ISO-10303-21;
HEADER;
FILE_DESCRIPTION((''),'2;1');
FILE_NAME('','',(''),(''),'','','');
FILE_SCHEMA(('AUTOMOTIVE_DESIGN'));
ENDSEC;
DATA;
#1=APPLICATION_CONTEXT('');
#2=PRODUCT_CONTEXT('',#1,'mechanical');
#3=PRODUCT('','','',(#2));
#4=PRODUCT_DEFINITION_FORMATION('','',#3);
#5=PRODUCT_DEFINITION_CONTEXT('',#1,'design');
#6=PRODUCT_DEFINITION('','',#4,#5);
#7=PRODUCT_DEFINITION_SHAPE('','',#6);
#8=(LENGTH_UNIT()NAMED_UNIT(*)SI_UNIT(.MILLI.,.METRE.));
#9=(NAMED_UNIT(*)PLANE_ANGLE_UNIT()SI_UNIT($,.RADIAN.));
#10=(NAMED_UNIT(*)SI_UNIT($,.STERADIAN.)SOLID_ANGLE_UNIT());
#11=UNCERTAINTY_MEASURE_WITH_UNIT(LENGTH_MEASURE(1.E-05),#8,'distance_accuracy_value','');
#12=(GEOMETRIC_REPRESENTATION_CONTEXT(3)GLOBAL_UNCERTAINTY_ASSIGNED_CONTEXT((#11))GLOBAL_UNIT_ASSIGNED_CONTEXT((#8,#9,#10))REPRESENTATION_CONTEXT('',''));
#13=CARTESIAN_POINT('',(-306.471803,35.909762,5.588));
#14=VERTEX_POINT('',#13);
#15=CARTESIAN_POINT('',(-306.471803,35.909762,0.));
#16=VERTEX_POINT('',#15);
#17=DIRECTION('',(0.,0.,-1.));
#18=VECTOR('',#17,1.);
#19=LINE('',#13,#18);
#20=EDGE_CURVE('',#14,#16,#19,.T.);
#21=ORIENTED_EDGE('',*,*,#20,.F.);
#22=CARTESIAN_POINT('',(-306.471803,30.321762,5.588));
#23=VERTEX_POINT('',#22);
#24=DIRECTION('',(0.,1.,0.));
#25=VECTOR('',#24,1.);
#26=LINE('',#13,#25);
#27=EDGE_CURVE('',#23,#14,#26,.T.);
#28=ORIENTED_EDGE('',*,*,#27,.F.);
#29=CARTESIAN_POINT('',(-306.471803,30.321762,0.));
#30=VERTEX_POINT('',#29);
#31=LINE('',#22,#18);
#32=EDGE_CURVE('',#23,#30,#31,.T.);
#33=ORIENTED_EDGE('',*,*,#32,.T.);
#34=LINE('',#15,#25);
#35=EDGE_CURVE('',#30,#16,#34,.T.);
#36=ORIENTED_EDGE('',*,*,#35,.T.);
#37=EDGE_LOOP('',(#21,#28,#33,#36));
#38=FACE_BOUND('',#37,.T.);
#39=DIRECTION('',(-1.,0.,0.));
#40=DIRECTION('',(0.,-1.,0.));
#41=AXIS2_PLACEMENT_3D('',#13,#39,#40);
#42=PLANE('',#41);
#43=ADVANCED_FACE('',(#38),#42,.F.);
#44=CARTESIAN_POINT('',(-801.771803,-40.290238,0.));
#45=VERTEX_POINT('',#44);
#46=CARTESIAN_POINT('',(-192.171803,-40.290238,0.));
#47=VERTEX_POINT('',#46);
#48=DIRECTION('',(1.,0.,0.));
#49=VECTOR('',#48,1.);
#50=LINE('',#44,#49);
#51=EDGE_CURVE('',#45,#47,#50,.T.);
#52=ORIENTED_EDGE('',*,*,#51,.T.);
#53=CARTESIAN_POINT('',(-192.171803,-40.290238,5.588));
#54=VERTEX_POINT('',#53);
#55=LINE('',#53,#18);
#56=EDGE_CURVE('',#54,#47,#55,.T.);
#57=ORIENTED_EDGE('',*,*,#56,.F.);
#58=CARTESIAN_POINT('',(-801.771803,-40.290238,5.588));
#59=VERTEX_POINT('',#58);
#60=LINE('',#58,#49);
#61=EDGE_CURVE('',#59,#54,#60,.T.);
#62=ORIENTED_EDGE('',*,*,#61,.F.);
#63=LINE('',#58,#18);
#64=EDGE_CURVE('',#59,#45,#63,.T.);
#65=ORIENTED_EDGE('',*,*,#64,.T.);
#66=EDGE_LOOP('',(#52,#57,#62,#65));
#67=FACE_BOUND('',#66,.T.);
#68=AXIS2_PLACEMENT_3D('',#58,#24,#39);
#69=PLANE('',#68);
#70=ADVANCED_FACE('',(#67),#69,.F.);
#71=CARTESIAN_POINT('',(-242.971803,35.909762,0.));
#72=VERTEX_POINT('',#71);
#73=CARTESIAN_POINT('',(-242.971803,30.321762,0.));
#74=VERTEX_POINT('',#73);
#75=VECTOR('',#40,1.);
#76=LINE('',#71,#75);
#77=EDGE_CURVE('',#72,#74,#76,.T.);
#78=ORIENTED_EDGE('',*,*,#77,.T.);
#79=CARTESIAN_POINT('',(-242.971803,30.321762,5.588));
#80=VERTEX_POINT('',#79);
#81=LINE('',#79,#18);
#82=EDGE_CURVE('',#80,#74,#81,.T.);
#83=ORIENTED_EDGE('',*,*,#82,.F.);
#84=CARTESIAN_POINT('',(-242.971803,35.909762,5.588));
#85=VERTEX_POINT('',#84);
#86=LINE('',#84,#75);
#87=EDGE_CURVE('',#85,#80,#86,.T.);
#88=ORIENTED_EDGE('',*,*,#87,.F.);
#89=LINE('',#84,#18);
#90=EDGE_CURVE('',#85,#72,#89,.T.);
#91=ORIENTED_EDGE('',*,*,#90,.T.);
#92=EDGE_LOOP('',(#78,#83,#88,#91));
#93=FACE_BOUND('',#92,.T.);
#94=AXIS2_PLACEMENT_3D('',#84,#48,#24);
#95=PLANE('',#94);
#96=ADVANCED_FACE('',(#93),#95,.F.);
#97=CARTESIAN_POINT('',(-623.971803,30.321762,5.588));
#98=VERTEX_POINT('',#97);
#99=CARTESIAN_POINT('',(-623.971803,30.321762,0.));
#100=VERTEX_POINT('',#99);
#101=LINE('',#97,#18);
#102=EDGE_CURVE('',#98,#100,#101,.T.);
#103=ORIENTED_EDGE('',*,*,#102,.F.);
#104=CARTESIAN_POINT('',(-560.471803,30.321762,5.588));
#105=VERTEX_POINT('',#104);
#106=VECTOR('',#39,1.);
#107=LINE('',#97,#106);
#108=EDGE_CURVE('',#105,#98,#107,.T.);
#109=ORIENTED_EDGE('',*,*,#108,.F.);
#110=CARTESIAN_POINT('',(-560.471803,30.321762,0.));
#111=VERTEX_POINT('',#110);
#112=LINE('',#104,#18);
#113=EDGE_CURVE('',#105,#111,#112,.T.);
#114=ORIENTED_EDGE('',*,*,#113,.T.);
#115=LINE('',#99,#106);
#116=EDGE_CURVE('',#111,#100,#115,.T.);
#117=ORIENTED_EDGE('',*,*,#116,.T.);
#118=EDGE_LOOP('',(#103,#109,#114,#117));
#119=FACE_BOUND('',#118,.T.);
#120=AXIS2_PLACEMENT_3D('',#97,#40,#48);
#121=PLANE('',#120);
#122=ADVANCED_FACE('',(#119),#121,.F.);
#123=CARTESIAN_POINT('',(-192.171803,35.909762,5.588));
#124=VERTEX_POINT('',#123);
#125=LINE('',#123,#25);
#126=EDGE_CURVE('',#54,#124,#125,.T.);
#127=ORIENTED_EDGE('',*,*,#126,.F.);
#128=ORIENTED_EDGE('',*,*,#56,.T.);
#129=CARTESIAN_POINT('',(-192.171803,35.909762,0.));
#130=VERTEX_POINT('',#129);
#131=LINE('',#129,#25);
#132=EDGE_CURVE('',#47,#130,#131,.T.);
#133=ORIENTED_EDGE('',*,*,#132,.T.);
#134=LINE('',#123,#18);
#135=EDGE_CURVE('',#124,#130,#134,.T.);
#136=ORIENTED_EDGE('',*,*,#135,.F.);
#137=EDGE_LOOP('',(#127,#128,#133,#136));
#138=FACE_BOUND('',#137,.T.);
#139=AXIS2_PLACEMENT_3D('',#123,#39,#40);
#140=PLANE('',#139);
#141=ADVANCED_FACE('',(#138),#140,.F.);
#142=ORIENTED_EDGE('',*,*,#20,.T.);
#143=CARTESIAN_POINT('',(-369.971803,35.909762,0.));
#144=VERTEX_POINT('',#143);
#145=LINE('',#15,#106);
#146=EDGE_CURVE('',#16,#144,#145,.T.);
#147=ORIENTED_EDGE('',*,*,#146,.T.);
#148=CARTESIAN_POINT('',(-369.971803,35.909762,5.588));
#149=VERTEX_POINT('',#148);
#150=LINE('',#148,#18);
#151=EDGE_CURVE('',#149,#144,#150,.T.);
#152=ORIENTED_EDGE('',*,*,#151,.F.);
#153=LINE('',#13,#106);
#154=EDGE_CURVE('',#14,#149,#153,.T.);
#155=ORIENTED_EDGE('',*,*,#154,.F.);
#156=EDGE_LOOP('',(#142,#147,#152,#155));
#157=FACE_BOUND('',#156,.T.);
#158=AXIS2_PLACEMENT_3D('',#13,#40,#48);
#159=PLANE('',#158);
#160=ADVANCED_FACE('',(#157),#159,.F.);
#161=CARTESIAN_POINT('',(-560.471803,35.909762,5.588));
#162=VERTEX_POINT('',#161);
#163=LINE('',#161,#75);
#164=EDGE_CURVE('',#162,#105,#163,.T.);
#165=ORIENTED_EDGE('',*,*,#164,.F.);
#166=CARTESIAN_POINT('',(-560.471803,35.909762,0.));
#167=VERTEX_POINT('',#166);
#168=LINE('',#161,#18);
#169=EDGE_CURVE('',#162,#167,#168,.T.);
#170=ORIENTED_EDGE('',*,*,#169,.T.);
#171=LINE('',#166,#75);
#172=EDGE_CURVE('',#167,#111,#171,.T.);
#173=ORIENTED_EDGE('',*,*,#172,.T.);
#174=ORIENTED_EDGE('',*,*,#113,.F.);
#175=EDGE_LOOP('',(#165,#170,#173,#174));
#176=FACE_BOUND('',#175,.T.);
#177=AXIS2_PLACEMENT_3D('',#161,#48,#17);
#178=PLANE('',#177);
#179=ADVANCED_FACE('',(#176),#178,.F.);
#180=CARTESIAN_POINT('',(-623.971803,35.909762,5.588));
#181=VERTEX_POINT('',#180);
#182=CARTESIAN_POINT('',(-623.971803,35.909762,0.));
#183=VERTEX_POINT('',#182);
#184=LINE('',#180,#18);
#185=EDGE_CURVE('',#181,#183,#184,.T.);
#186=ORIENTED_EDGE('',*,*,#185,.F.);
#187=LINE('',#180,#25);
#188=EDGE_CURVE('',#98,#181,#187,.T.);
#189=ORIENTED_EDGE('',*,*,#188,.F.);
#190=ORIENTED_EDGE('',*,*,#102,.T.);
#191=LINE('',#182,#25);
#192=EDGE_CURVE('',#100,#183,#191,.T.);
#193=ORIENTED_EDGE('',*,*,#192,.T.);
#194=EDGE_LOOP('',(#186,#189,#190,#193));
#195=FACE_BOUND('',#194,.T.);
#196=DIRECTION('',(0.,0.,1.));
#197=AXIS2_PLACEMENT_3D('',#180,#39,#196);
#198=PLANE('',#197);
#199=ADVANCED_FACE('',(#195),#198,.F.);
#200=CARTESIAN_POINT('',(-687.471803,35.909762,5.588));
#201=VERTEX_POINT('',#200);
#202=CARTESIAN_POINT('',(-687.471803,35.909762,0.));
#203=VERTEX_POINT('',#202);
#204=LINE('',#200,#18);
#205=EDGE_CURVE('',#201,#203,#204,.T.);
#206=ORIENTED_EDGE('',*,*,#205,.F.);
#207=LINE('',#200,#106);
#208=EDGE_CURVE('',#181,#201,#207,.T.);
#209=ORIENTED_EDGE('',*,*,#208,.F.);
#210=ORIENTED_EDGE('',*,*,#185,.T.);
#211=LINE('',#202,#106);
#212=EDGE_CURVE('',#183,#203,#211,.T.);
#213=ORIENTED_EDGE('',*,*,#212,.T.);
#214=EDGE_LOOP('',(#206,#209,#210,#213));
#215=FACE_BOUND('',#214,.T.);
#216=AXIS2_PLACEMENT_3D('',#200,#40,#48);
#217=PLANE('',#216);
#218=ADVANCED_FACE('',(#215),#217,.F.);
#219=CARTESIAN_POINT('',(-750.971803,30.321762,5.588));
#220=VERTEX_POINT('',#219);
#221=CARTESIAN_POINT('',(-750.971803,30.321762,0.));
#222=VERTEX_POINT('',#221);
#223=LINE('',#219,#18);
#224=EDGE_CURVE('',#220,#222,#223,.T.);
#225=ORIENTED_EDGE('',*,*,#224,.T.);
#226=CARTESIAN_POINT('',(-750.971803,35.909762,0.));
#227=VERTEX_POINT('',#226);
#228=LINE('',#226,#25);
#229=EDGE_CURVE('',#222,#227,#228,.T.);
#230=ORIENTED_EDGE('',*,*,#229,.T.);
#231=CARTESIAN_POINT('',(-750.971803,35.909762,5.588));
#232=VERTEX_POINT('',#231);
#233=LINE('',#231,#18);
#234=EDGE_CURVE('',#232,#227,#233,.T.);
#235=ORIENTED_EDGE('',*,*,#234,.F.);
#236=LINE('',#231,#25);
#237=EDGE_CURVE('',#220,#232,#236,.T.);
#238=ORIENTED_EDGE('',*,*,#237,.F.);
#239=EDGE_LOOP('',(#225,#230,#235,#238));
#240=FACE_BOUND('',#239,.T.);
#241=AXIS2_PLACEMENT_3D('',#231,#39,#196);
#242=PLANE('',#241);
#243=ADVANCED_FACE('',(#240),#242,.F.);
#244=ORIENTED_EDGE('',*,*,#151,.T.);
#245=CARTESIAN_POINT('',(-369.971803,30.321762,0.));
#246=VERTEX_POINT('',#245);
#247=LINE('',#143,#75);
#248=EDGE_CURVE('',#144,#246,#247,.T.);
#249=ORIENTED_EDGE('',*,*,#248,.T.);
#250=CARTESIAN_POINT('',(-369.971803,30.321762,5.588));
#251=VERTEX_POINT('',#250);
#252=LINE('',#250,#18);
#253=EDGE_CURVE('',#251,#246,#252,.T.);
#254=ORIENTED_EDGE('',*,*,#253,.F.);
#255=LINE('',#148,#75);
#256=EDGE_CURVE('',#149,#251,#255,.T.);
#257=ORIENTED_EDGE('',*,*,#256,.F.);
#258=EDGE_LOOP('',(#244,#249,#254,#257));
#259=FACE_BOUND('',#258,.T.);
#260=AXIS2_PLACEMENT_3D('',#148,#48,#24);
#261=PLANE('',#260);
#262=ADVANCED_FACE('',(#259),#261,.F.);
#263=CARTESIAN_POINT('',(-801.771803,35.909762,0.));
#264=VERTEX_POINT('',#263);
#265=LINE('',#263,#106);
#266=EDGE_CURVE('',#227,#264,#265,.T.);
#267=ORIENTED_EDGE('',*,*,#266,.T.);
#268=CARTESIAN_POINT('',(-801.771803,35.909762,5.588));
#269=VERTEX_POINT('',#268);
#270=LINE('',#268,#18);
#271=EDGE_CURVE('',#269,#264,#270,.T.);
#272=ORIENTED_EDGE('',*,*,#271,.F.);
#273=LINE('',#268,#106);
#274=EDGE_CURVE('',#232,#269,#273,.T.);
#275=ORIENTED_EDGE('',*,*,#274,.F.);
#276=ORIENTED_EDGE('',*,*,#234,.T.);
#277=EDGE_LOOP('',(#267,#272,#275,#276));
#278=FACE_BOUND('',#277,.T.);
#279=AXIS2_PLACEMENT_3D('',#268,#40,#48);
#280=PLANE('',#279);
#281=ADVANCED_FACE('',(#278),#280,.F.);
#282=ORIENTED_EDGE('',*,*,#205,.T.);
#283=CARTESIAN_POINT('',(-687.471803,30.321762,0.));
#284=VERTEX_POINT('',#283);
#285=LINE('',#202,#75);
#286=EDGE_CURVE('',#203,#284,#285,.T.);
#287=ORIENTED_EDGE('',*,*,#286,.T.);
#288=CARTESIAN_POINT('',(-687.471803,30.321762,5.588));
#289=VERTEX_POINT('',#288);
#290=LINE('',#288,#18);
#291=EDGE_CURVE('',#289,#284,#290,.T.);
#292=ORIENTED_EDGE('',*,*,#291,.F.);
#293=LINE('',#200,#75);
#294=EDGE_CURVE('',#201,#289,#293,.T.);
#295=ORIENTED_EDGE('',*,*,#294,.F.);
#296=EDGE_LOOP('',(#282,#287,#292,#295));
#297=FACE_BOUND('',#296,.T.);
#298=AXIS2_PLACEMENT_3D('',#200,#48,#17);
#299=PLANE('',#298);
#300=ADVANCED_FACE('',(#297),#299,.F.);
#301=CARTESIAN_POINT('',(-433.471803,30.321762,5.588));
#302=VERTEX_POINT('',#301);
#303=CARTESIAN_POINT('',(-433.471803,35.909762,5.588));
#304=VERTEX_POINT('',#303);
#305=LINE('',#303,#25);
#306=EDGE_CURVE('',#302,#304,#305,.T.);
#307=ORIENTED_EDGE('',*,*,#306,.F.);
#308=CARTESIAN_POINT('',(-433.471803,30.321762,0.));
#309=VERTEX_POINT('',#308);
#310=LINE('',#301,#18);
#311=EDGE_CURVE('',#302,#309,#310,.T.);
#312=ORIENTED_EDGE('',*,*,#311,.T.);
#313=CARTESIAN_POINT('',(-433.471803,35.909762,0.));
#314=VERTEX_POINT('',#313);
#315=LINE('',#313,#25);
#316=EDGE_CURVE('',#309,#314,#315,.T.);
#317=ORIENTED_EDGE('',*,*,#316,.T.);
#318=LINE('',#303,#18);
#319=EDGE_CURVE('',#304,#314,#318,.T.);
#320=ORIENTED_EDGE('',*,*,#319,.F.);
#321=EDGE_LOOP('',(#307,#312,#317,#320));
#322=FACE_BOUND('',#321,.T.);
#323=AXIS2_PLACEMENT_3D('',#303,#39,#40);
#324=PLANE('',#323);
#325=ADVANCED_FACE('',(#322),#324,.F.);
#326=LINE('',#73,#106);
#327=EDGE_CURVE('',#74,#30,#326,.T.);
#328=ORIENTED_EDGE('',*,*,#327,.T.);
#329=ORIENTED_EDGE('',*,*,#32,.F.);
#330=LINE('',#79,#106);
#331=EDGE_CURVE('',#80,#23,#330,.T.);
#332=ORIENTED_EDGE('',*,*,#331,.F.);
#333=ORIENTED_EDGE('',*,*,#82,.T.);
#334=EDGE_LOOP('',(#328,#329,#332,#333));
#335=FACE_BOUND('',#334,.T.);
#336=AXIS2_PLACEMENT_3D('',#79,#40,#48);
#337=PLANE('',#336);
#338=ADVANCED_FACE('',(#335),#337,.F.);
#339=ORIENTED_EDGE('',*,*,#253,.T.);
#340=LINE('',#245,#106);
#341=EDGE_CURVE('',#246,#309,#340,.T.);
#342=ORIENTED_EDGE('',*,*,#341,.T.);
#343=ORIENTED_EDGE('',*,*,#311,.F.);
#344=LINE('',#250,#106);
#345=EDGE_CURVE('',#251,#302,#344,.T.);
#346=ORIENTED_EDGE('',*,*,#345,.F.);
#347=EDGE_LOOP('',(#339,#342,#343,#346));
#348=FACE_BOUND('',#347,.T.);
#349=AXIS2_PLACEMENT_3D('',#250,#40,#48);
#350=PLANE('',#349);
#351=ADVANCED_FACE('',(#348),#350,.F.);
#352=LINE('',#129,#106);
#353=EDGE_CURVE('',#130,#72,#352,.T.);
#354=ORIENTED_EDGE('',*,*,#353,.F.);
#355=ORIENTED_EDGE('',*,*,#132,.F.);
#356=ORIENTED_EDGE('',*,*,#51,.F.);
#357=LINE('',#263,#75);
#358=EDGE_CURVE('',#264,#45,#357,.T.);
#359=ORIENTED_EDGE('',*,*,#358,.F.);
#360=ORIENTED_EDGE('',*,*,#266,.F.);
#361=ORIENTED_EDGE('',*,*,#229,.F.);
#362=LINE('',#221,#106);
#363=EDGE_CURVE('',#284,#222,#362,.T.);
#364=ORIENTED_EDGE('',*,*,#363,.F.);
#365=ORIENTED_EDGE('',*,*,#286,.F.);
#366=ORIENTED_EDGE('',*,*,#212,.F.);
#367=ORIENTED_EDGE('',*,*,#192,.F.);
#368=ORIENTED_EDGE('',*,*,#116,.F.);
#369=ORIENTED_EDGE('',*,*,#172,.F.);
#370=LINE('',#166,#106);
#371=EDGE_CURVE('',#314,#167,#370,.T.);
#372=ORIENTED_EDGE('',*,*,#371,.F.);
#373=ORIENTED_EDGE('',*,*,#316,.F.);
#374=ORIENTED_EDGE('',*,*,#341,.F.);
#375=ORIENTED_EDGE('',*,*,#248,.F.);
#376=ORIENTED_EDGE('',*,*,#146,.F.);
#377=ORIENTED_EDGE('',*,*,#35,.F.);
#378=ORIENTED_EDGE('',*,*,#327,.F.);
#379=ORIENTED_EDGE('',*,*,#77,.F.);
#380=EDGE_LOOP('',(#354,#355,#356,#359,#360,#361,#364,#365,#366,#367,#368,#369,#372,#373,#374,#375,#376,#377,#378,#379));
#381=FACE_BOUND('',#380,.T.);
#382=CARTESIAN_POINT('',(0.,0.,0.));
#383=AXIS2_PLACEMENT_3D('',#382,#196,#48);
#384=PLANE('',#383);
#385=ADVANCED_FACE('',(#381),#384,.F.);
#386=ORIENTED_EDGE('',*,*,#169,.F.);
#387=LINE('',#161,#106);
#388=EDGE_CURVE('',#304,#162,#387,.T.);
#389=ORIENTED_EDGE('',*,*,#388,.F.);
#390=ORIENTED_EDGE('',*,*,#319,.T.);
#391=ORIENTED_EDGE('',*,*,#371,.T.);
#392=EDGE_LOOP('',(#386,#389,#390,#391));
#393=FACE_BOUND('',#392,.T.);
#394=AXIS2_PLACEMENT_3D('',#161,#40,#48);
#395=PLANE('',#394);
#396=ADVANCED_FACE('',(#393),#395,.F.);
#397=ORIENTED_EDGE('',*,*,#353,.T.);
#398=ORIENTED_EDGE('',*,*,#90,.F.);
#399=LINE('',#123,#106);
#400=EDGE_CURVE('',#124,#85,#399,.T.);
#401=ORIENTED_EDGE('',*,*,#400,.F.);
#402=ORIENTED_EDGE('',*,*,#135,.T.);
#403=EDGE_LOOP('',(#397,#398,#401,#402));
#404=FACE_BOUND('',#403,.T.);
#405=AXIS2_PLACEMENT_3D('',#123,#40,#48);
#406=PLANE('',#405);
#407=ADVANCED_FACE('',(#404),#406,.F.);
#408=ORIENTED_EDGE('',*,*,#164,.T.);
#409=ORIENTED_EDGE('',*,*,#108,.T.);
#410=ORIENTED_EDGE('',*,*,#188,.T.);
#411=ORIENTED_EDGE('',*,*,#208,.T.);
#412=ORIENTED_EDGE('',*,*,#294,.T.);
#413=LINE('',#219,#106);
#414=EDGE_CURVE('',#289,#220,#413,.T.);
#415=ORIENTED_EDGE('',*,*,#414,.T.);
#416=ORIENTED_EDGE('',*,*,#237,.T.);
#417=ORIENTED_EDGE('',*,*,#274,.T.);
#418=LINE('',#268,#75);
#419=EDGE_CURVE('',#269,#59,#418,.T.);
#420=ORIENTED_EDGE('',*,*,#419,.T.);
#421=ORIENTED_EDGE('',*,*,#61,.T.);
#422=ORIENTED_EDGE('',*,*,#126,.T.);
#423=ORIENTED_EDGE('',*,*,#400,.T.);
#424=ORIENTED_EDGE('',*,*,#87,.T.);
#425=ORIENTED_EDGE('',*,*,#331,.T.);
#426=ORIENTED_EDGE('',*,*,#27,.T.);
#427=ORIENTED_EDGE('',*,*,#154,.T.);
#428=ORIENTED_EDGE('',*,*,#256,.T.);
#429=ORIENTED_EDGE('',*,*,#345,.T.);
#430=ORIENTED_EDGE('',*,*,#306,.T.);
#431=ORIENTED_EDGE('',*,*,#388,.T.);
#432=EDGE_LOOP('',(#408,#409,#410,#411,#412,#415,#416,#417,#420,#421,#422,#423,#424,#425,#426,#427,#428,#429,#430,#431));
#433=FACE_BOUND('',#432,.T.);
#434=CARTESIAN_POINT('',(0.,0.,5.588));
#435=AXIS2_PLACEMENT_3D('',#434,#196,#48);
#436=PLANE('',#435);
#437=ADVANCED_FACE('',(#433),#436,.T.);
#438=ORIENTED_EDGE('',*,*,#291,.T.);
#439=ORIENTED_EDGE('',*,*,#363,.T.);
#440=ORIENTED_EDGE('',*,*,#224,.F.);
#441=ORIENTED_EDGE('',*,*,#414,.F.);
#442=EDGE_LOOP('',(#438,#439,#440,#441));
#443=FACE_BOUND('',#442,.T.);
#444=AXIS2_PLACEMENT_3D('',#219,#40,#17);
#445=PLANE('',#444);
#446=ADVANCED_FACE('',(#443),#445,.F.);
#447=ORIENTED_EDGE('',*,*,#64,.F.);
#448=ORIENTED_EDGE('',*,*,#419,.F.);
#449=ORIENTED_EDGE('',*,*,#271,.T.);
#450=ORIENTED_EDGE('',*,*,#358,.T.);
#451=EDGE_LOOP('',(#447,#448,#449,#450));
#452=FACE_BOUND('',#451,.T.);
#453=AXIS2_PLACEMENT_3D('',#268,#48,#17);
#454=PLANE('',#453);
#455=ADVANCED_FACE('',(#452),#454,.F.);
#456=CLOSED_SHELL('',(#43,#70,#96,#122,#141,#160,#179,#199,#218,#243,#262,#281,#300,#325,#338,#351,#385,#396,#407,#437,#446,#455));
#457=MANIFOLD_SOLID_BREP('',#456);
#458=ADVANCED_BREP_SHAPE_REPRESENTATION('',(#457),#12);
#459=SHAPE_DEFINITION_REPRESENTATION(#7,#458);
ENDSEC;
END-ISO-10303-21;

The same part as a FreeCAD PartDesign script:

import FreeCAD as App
import Part
import Sketcher
from FreeCAD import Vector
Q = App.Units.Quantity

doc = App.newDocument("Part")
body = doc.addObject("PartDesign::Body", "Body")

sketch1 = body.newObject("Sketcher::SketchObject", "Sketch")
sketch1.AttachmentSupport = (doc.getObject("XY_Plane"), [""])
sketch1.MapMode = "FlatFace"
sketch1.addGeometry([
    Part.LineSegment(Vector(-751, 36, 0), Vector(-802, 36, 0)),
    Part.LineSegment(Vector(-802, 36, 0), Vector(-802, -40, 0)),
    Part.LineSegment(Vector(-802, -40, 0), Vector(-192, -40, 0)),
    Part.LineSegment(Vector(-192, -40, 0), Vector(-192, 36, 0)),
    Part.LineSegment(Vector(-192, 36, 0), Vector(-243, 36, 0)),
    Part.LineSegment(Vector(-243, 36, 0), Vector(-243, 30, 0)),
    Part.LineSegment(Vector(-243, 30, 0), Vector(-306, 30, 0)),
    Part.LineSegment(Vector(-306, 30, 0), Vector(-306, 36, 0)),
    Part.LineSegment(Vector(-306, 36, 0), Vector(-370, 36, 0)),
    Part.LineSegment(Vector(-370, 36, 0), Vector(-370, 30, 0)),
    Part.LineSegment(Vector(-370, 30, 0), Vector(-433, 30, 0)),
    Part.LineSegment(Vector(-433, 30, 0), Vector(-433, 36, 0)),
    Part.LineSegment(Vector(-433, 36, 0), Vector(-560, 36, 0)),
    Part.LineSegment(Vector(-560, 36, 0), Vector(-560, 30, 0)),
    Part.LineSegment(Vector(-560, 30, 0), Vector(-624, 30, 0)),
    Part.LineSegment(Vector(-624, 30, 0), Vector(-624, 36, 0)),
    Part.LineSegment(Vector(-624, 36, 0), Vector(-687, 36, 0)),
    Part.LineSegment(Vector(-687, 36, 0), Vector(-687, 30, 0)),
    Part.LineSegment(Vector(-687, 30, 0), Vector(-751, 30, 0)),
    Part.LineSegment(Vector(-751, 30, 0), Vector(-751, 36, 0)),
], False)
sketch1.addConstraint([
    Sketcher.Constraint("Coincident", 0, 2, 1, 1),
    Sketcher.Constraint("Coincident", 1, 2, 2, 1),
    Sketcher.Constraint("Coincident", 2, 2, 3, 1),
    Sketcher.Constraint("Coincident", 3, 2, 4, 1),
    Sketcher.Constraint("Coincident", 4, 2, 5, 1),
    Sketcher.Constraint("Coincident", 5, 2, 6, 1),
    Sketcher.Constraint("Coincident", 6, 2, 7, 1),
    Sketcher.Constraint("Coincident", 7, 2, 8, 1),
    Sketcher.Constraint("Coincident", 8, 2, 9, 1),
    Sketcher.Constraint("Coincident", 9, 2, 10, 1),
    Sketcher.Constraint("Coincident", 10, 2, 11, 1),
    Sketcher.Constraint("Coincident", 11, 2, 12, 1),
    Sketcher.Constraint("Coincident", 12, 2, 13, 1),
    Sketcher.Constraint("Coincident", 13, 2, 14, 1),
    Sketcher.Constraint("Coincident", 14, 2, 15, 1),
    Sketcher.Constraint("Coincident", 15, 2, 16, 1),
    Sketcher.Constraint("Coincident", 16, 2, 17, 1),
    Sketcher.Constraint("Coincident", 17, 2, 18, 1),
    Sketcher.Constraint("Coincident", 18, 2, 19, 1),
    Sketcher.Constraint("Coincident", 19, 2, 0, 1),
    Sketcher.Constraint("Horizontal", 0),
    Sketcher.Constraint("Vertical", 1),
    Sketcher.Constraint("Horizontal", 2),
    Sketcher.Constraint("Vertical", 3),
    Sketcher.Constraint("Horizontal", 4),
    Sketcher.Constraint("Vertical", 5),
    Sketcher.Constraint("Horizontal", 6),
    Sketcher.Constraint("Vertical", 7),
    Sketcher.Constraint("Horizontal", 8),
    Sketcher.Constraint("Vertical", 9),
    Sketcher.Constraint("Horizontal", 10),
    Sketcher.Constraint("Vertical", 11),
    Sketcher.Constraint("Horizontal", 12),
    Sketcher.Constraint("Vertical", 13),
    Sketcher.Constraint("Horizontal", 14),
    Sketcher.Constraint("Vertical", 15),
    Sketcher.Constraint("Horizontal", 16),
    Sketcher.Constraint("Vertical", 17),
    Sketcher.Constraint("Horizontal", 18),
    Sketcher.Constraint("Vertical", 19),
    Sketcher.Constraint("Horizontal", 0, 2, 3, 2),
    Sketcher.Constraint("Horizontal", 4, 2, 7, 2),
    Sketcher.Constraint("Horizontal", 6, 2, 9, 2),
    Sketcher.Constraint("Horizontal", 8, 2, 11, 2),
    Sketcher.Constraint("Horizontal", 10, 2, 13, 2),
    Sketcher.Constraint("Horizontal", 12, 2, 15, 2),
    Sketcher.Constraint("Horizontal", 14, 2, 17, 2),
    Sketcher.Constraint("Equal", 0, 4),
    Sketcher.Constraint("Equal", 6, 8),
    Sketcher.Constraint("Equal", 8, 10),
    Sketcher.Constraint("Equal", 10, 14),
    Sketcher.Constraint("Equal", 14, 16),
    Sketcher.Constraint("Equal", 16, 18),
    Sketcher.Constraint("DistanceX", 0, 2, 0, 1, Q("2 in")),
    Sketcher.Constraint("DistanceX", 2, 1, 2, 2, Q("24 in")),
    Sketcher.Constraint("DistanceX", 12, 2, 12, 1, Q("5 in")),
    Sketcher.Constraint("DistanceY", 1, 2, 1, 1, Q("3 in")),
    Sketcher.Constraint("DistanceY", 5, 2, 5, 1, Q("0.22 in")),
    Sketcher.Constraint("DistanceY", -1, 1, 0, 2, Q("35.909762 mm")),
    Sketcher.Constraint("DistanceX", 0, 2, -1, 1, Q("801.771803 mm")),
])
pad1 = body.newObject("PartDesign::Pad", "Pad")
pad1.Profile = sketch1
pad1.Length = Q("0.22 in")

doc.recompute()
